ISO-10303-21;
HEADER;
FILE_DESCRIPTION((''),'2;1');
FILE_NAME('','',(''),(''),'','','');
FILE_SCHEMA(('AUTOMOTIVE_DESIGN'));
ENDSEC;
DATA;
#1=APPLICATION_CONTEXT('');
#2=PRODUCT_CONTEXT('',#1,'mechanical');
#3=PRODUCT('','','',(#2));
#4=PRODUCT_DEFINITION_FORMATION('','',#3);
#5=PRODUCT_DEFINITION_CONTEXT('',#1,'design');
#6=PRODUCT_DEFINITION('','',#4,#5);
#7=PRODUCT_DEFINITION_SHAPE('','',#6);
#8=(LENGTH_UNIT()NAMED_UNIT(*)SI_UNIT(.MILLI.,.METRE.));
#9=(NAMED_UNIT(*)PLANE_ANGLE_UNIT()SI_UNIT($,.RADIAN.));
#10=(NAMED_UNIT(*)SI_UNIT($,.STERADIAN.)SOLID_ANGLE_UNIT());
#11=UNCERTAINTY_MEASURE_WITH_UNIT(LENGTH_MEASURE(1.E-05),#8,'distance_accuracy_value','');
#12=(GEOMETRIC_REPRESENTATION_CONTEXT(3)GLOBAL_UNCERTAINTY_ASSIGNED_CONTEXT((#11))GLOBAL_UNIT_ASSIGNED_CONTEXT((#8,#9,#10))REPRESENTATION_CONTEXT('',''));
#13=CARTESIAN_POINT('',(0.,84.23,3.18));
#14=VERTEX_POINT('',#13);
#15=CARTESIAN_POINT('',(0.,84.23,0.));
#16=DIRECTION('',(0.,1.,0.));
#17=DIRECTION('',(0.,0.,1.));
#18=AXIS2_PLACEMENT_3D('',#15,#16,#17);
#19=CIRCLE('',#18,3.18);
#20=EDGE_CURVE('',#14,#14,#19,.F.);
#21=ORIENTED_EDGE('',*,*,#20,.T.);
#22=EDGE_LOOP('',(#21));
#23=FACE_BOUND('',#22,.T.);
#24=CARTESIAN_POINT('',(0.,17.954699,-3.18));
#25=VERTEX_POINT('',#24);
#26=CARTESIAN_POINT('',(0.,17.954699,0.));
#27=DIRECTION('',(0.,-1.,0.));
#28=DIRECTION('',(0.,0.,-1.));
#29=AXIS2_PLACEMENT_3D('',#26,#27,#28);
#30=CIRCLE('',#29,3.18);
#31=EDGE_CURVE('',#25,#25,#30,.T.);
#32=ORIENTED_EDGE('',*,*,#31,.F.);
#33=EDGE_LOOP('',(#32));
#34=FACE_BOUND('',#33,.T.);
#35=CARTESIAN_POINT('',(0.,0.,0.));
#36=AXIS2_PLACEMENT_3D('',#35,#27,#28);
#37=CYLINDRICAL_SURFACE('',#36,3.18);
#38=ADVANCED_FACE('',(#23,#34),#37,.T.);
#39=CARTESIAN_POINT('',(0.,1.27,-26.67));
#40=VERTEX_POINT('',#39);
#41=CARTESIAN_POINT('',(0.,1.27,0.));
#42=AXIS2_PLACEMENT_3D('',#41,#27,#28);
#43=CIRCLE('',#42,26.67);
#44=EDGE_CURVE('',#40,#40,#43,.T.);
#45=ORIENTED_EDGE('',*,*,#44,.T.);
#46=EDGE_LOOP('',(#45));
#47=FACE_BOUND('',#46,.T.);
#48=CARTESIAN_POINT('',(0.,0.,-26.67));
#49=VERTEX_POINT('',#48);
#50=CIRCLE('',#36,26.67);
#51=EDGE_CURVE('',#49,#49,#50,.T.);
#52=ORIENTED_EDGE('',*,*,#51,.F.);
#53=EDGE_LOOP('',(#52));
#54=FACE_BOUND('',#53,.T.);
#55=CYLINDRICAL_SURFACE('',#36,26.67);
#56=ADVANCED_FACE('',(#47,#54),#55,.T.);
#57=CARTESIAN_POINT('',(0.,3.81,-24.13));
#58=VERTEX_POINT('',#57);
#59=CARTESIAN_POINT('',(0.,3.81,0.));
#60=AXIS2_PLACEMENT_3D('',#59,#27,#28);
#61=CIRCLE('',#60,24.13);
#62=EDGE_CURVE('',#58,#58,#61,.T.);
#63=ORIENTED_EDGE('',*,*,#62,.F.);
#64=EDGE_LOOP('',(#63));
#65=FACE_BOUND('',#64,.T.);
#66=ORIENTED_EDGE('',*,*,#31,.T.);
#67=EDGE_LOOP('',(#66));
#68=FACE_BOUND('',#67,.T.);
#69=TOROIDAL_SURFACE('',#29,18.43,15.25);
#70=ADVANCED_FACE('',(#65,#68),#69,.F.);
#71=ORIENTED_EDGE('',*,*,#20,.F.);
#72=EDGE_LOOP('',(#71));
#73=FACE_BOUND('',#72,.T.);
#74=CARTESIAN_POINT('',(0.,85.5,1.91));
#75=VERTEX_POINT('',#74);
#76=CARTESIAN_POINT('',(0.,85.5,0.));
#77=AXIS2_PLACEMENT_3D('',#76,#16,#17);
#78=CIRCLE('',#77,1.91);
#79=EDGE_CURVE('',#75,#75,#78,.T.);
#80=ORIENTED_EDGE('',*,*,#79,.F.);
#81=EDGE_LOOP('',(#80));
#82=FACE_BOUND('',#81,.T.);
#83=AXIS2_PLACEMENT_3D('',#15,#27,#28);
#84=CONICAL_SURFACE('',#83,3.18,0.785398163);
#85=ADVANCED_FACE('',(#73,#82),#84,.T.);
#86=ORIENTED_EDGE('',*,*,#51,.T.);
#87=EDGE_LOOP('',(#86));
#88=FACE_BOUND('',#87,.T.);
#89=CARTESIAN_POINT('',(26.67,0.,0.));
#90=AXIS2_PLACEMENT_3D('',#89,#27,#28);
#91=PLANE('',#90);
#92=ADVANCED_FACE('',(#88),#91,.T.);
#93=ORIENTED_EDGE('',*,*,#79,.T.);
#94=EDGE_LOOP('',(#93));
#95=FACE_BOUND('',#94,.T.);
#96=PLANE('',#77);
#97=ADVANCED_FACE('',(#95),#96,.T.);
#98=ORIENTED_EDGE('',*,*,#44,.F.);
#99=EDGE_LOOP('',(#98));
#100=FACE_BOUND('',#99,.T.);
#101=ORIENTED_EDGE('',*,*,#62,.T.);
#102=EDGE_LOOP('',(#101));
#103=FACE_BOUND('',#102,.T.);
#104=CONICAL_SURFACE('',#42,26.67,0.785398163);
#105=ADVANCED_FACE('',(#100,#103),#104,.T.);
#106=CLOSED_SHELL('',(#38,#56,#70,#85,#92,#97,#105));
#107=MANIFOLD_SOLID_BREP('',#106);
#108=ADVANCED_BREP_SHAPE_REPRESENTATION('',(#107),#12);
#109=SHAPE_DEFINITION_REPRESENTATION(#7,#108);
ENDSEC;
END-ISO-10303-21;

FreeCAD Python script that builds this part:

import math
import FreeCAD as App
import Part
import Sketcher

V = App.Vector
Q = App.Units.Quantity


def edges_at(feature, points):
    """Names of the edges that pass closest to the given points."""
    edges = feature.Shape.Edges
    near = lambda p: min(range(len(edges)), key=lambda i: edges[i].distToShape(Part.Vertex(*p))[0])
    return sorted({f"Edge{near(p) + 1}" for p in points})

doc = App.newDocument("Part")
params = doc.addObject("Spreadsheet::Sheet", "Params")
for row, (alias, value) in enumerate([
    ("sketch1_radius", "15.25 mm"),
    ("sketch1_height", "85.5 mm"),
    ("sketch1_width", "26.67 mm"),
    ("sketch1_width2", "3.18 mm"),
    ("sketch1_height2", "1.27 mm"),
    ("revolution_angle", "360 deg"),
    ("chamfer_size", "1.27 mm"),
], start=1):
    params.set(f"A{row}", alias)
    params.set(f"B{row}", "=" + value)
    params.setAlias(f"B{row}", alias)

body = doc.addObject("PartDesign::Body", "Body")

sketch1 = doc.addObject("Sketcher::SketchObject", "Sketch")
body.addObject(sketch1)
sketch1.AttachmentSupport = (doc.XY_Plane, [""])
sketch1.MapMode = "FlatFace"
sketch1.addGeometry([
    Part.LineSegment(V(0, 85.5, 0), V(0, 0, 0)),
    Part.LineSegment(V(0, 0, 0), V(26.67, 0, 0)),
    Part.LineSegment(V(26.67, 0, 0), V(26.67, 1.27, 0)),
    Part.LineSegment(V(26.67, 1.27, 0), V(24.13, 3.81, 0)),
    Part.ArcOfCircle(Part.Circle(V(18.43, 17.954699, 0), V(0, 0, 1), 15.25), math.radians(180), math.radians(291.948342)),
    Part.LineSegment(V(3.18, 17.954699, 0), V(3.18, 85.5, 0)),
    Part.LineSegment(V(3.18, 85.5, 0), V(0, 85.5, 0)),
], False)
sketch1.addConstraint([
    Sketcher.Constraint("Coincident", 0, 2, 1, 1),
    Sketcher.Constraint("Coincident", 1, 2, 2, 1),
    Sketcher.Constraint("Coincident", 2, 2, 3, 1),
    Sketcher.Constraint("Coincident", 3, 2, 4, 2),
    Sketcher.Constraint("Tangent", 4, 1, 5, 1),
    Sketcher.Constraint("Coincident", 5, 2, 6, 1),
    Sketcher.Constraint("Coincident", 6, 2, 0, 1),
    Sketcher.Constraint("Vertical", 0),
    Sketcher.Constraint("Horizontal", 1),
    Sketcher.Constraint("Vertical", 2),
    Sketcher.Constraint("Vertical", 5),
    Sketcher.Constraint("Horizontal", 6),
    Sketcher.Constraint("Coincident", 0, 2, -1, 1),
    Sketcher.Constraint("Angle", 3, Q("135 deg")),
    Sketcher.Constraint("Radius", 4, Q("15.25 mm")),
    Sketcher.Constraint("DistanceY", 0, 2, 0, 1, Q("85.5 mm")),
    Sketcher.Constraint("DistanceX", 1, 1, 1, 2, Q("26.67 mm")),
    Sketcher.Constraint("DistanceX", 6, 2, 6, 1, Q("3.18 mm")),
    Sketcher.Constraint("DistanceY", 2, 1, 2, 2, Q("1.27 mm")),
    Sketcher.Constraint("DistanceX", 4, 3, 3, 2, Q("5.7 mm")),
])
sketch1.setExpression("Constraints[14]", "Params.sketch1_radius")
sketch1.setExpression("Constraints[15]", "Params.sketch1_height")
sketch1.setExpression("Constraints[16]", "Params.sketch1_width")
sketch1.setExpression("Constraints[17]", "Params.sketch1_width2")
sketch1.setExpression("Constraints[18]", "Params.sketch1_height2")
revolution = doc.addObject("PartDesign::Revolution", "Revolution")
body.addObject(revolution)
revolution.Profile = sketch1
revolution.ReferenceAxis = (sketch1, ["V_Axis"])
revolution.setExpression("Angle", "Params.revolution_angle")
doc.recompute()

chamfer = doc.addObject("PartDesign::Chamfer", "Chamfer")
body.addObject(chamfer)
chamfer.Base = (revolution, edges_at(revolution, [(0, 85.5, 3.18)]))
chamfer.setExpression("Size", "Params.chamfer_size")

doc.recompute()
